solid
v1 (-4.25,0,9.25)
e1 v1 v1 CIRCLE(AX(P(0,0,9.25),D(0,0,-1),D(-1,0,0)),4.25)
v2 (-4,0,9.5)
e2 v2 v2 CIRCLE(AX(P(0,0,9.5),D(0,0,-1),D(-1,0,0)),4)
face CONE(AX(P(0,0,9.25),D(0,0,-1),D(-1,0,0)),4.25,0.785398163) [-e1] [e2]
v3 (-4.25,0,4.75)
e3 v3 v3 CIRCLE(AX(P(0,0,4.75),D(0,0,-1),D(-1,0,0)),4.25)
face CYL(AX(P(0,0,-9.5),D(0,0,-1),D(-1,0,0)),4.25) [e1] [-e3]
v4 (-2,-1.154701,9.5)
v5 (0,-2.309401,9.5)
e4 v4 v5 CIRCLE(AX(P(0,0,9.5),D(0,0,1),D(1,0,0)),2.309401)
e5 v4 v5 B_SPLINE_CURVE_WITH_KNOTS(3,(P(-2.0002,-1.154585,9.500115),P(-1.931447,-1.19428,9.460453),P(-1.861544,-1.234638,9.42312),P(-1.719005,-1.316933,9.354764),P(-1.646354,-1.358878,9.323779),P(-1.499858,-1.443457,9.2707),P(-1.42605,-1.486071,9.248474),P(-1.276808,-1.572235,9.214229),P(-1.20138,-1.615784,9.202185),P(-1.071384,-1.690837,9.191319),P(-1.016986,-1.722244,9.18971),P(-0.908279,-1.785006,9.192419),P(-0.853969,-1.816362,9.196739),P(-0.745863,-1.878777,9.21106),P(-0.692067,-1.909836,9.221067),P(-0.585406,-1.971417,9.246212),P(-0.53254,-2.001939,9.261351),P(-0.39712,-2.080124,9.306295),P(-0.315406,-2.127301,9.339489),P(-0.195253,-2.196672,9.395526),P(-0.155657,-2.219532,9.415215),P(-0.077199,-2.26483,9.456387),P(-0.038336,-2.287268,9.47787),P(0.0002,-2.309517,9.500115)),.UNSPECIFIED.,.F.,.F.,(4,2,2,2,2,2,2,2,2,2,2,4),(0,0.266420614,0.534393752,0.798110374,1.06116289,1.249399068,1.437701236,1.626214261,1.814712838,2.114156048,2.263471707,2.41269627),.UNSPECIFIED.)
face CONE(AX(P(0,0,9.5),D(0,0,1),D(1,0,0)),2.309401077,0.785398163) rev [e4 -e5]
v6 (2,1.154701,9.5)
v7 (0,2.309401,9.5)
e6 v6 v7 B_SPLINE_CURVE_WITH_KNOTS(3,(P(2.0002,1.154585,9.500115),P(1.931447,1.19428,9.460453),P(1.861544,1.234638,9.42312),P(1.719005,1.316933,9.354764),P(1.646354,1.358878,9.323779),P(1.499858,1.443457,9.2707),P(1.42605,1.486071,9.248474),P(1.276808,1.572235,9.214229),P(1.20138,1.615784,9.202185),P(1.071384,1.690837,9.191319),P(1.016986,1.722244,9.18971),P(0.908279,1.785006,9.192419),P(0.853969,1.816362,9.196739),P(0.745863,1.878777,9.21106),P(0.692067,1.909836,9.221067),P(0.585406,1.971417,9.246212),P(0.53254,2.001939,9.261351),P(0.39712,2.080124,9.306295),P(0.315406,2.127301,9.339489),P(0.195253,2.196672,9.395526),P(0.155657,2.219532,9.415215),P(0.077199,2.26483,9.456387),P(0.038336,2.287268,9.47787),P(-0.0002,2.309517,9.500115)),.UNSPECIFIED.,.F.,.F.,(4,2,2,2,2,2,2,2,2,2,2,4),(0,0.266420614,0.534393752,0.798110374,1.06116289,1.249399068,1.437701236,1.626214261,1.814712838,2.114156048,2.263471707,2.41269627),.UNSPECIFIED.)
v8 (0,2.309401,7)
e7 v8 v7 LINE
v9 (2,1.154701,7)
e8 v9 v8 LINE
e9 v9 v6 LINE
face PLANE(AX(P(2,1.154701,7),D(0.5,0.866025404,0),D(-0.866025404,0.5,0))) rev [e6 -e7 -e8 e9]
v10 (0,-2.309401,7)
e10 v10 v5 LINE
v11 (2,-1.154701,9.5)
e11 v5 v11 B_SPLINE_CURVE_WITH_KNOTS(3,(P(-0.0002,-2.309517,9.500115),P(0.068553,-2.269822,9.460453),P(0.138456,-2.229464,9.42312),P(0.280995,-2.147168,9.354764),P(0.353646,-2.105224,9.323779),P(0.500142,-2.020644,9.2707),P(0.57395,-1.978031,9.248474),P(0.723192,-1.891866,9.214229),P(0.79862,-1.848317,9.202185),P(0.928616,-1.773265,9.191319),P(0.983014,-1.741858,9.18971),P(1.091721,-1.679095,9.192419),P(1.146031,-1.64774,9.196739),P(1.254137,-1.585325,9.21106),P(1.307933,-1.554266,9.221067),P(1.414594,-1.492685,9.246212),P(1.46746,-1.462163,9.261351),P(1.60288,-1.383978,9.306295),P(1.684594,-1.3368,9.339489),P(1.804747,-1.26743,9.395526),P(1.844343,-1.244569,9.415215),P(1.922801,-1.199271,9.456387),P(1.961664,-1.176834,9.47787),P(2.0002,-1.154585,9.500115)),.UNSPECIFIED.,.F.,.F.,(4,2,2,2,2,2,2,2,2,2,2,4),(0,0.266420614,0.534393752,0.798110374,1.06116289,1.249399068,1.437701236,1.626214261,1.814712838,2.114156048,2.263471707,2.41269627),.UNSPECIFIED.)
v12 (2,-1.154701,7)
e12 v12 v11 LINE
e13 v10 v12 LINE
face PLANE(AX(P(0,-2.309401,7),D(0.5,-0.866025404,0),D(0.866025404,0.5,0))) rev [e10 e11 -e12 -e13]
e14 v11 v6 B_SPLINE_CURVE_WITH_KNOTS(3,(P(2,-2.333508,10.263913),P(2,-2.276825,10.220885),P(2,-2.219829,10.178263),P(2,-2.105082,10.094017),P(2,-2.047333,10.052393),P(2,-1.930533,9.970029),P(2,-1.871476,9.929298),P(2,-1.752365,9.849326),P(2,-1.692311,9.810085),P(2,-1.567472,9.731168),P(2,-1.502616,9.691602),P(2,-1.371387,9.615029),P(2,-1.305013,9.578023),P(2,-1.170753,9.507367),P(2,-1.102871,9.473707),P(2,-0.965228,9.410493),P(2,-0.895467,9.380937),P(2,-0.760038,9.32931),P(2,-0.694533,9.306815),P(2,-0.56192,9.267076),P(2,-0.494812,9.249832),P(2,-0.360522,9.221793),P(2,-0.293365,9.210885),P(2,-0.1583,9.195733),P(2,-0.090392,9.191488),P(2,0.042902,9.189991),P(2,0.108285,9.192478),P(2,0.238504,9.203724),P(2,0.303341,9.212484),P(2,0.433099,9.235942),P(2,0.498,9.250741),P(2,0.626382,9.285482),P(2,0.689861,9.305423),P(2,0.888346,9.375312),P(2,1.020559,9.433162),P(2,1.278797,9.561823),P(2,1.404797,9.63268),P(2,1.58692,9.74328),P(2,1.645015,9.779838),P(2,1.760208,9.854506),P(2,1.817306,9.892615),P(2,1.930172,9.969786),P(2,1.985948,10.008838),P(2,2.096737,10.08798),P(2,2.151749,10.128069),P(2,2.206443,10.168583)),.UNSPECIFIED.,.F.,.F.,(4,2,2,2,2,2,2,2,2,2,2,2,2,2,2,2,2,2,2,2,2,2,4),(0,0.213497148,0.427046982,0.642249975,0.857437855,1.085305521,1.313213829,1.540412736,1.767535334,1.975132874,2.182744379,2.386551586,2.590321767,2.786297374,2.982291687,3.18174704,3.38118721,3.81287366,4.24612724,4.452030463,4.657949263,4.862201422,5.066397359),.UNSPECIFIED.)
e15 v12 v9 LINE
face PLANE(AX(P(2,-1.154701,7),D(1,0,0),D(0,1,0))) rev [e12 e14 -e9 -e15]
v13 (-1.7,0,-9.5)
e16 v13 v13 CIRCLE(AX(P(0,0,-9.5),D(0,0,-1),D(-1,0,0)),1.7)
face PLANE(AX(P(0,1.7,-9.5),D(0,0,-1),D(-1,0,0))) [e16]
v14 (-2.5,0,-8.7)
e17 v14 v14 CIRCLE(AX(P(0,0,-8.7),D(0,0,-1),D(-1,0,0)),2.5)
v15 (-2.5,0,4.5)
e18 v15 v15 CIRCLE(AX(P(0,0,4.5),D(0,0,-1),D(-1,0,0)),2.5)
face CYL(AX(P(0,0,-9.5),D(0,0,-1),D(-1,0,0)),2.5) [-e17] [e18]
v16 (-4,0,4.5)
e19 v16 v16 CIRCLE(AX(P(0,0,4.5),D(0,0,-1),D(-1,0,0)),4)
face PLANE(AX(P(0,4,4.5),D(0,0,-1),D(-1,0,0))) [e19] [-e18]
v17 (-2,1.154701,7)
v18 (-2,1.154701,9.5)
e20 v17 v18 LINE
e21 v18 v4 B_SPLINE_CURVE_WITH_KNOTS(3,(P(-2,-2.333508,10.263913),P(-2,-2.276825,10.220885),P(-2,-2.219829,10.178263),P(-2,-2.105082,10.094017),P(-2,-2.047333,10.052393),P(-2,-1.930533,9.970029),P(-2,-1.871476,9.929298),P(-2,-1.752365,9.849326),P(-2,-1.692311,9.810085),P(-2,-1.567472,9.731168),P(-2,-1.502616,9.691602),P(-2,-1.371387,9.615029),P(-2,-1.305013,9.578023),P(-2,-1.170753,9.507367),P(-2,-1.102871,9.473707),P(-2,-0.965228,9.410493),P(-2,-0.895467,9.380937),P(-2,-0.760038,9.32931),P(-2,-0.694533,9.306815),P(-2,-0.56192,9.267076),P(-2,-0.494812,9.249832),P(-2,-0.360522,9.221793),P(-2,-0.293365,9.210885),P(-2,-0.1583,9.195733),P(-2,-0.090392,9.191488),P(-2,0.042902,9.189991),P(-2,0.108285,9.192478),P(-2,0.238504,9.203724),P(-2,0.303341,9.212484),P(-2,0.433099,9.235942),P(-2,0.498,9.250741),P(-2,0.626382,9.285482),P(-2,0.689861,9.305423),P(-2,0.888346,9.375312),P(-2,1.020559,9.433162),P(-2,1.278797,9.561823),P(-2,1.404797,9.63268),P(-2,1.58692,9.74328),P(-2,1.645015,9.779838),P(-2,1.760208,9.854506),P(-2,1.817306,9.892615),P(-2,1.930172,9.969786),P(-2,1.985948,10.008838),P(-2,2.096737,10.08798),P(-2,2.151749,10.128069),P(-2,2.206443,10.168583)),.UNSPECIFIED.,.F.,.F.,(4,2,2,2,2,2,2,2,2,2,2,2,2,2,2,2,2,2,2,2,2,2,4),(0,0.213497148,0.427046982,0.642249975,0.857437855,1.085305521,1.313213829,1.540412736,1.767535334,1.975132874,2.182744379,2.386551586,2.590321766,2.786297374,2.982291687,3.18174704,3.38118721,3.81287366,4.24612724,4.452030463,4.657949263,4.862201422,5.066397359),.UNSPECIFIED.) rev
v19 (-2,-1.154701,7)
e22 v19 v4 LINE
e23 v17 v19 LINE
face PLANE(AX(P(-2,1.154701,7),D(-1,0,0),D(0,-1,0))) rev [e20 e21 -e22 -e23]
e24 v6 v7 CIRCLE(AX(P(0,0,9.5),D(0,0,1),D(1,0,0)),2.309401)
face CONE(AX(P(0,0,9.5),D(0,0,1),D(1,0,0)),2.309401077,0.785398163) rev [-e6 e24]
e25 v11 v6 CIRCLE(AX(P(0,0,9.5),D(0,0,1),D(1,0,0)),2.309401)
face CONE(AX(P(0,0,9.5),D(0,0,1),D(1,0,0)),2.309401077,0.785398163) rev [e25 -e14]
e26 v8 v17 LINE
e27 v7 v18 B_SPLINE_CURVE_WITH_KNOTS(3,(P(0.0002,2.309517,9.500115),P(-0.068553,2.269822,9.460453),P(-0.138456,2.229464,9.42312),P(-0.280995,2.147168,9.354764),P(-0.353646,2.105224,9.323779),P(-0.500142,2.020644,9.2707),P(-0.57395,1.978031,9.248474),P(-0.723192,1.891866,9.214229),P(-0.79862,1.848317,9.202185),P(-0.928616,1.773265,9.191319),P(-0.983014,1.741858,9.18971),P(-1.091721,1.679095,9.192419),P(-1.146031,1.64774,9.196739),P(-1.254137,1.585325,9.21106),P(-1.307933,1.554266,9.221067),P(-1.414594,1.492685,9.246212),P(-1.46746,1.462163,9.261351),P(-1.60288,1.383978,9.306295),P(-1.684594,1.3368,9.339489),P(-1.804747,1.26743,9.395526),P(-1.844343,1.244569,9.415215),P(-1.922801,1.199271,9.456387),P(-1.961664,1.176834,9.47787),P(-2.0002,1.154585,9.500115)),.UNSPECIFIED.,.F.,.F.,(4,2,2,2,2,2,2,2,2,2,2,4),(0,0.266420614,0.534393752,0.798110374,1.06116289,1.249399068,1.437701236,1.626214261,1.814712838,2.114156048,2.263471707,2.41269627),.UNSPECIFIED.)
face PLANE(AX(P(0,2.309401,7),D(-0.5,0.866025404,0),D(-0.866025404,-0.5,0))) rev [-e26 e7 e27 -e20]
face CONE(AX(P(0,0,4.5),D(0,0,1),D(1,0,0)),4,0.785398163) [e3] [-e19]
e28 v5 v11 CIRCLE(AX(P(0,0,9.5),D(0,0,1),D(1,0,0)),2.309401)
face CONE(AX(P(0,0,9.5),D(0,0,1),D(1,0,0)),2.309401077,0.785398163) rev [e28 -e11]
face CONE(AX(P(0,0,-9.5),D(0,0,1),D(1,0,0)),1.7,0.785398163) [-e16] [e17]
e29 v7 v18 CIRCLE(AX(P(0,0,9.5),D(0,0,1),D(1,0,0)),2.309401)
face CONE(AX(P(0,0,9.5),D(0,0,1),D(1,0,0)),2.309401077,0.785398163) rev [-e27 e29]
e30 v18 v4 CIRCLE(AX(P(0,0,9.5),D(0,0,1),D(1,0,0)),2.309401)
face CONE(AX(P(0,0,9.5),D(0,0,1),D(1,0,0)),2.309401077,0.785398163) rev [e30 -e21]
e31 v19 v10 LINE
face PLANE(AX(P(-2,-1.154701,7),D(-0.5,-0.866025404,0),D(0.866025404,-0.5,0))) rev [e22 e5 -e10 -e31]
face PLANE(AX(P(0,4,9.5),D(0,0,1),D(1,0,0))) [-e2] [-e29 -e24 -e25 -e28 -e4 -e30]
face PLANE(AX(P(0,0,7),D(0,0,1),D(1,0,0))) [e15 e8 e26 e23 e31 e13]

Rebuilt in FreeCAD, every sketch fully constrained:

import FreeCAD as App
import Part
import Sketcher
from FreeCAD import Vector
Q = App.Units.Quantity

doc = App.newDocument("Part")
params = doc.addObject("Spreadsheet::Sheet", "Params")
for row, (alias, value) in enumerate([
    ("sketch1_width", "4 mm"),
    ("sketch1_height", "19 mm"),
    ("sketch1_width2", "1.7 mm"),
    ("sketch1_width3", "1.5 mm"),
    ("sketch1_height2", "4.5 mm"),
    ("revolution_angle", "360 deg"),
    ("pocket1_length", "2.5 mm"),
    ("pocket2_length", "0.5 mm"),
    ("pocket2_taper", "-45 deg"),
], start=1):
    params.set(f"A{row}", alias)
    params.set(f"B{row}", "=" + value)
    params.setAlias(f"B{row}", alias)

body = doc.addObject("PartDesign::Body", "Body")

# Sketch on YZ plane
sketch1 = body.newObject("Sketcher::SketchObject", "Sketch")
sketch1.AttachmentSupport = (doc.getObject("YZ_Plane"), [""])
sketch1.MapMode = "FlatFace"
sketch1.addGeometry([
    Part.LineSegment(Vector(4.25, 4.75, 0), Vector(4.25, 9.25, 0)),  # 0
    Part.LineSegment(Vector(4.25, 9.25, 0), Vector(4, 9.5, 0)),  # 1
    Part.LineSegment(Vector(4, 9.5, 0), Vector(0, 9.5, 0)),  # 2
    Part.LineSegment(Vector(0, 9.5, 0), Vector(0, -9.5, 0)),  # 3
    Part.LineSegment(Vector(0, -9.5, 0), Vector(1.7, -9.5, 0)),  # 4
    Part.LineSegment(Vector(1.7, -9.5, 0), Vector(2.5, -8.7, 0)),  # 5
    Part.LineSegment(Vector(2.5, -8.7, 0), Vector(2.5, 4.5, 0)),  # 6
    Part.LineSegment(Vector(2.5, 4.5, 0), Vector(4, 4.5, 0)),  # 7
    Part.LineSegment(Vector(4, 4.5, 0), Vector(4.25, 4.75, 0)),  # 8
], False)
sketch1.addConstraint([
    Sketcher.Constraint("Coincident", 0, 2, 1, 1),
    Sketcher.Constraint("Coincident", 1, 2, 2, 1),
    Sketcher.Constraint("Coincident", 2, 2, 3, 1),
    Sketcher.Constraint("Coincident", 3, 2, 4, 1),
    Sketcher.Constraint("Coincident", 4, 2, 5, 1),
    Sketcher.Constraint("Coincident", 5, 2, 6, 1),
    Sketcher.Constraint("Coincident", 6, 2, 7, 1),
    Sketcher.Constraint("Coincident", 7, 2, 8, 1),
    Sketcher.Constraint("Coincident", 8, 2, 0, 1),
    Sketcher.Constraint("Vertical", 0),
    Sketcher.Constraint("Horizontal", 2),
    Sketcher.Constraint("Vertical", 3),
    Sketcher.Constraint("Horizontal", 4),
    Sketcher.Constraint("Vertical", 6),
    Sketcher.Constraint("Horizontal", 7),
    Sketcher.Constraint("Symmetric", 2, 2, 3, 2, -1, 1),
    Sketcher.Constraint("Perpendicular", 1, 5),
    Sketcher.Constraint("Parallel", 5, 8),
    Sketcher.Constraint("Vertical", 1, 2, 7, 2),
    Sketcher.Constraint("Equal", 1, 8),
    Sketcher.Constraint("DistanceX", 2, 2, 2, 1, Q("4 mm")),
    Sketcher.Constraint("DistanceY", 3, 2, 3, 1, Q("19 mm")),
    Sketcher.Constraint("DistanceX", 4, 1, 4, 2, Q("1.7 mm")),
    Sketcher.Constraint("DistanceX", 7, 1, 7, 2, Q("1.5 mm")),
    Sketcher.Constraint("DistanceY", 0, 1, 0, 2, Q("4.5 mm")),
    Sketcher.Constraint("DistanceY", 6, 1, 6, 2, Q("13.2 mm")),
])
sketch1.setExpression("Constraints[20]", "Params.sketch1_width")
sketch1.setExpression("Constraints[21]", "Params.sketch1_height")
sketch1.setExpression("Constraints[22]", "Params.sketch1_width2")
sketch1.setExpression("Constraints[23]", "Params.sketch1_width3")
sketch1.setExpression("Constraints[24]", "Params.sketch1_height2")
revolution = body.newObject("PartDesign::Revolution", "Revolution")
revolution.Profile = sketch1
revolution.ReferenceAxis = (sketch1, ["V_Axis"])
revolution.setExpression("Angle", "Params.revolution_angle")

# Sketch on XY plane
sketch2 = body.newObject("Sketcher::SketchObject", "Sketch001")
sketch2.AttachmentSupport = (doc.getObject("XY_Plane"), [""])
sketch2.MapMode = "FlatFace"
sketch2.AttachmentOffset = App.Placement(Vector(0, 0, 7), App.Rotation())
sketch2.addGeometry([
    Part.LineSegment(Vector(0, 2.3, 0), Vector(-2, 1.2, 0)),  # 0
    Part.LineSegment(Vector(-2, 1.2, 0), Vector(-2, -1.2, 0)),  # 1
    Part.LineSegment(Vector(-2, -1.2, 0), Vector(0, -2.3, 0)),  # 2
    Part.LineSegment(Vector(0, -2.3, 0), Vector(2, -1.2, 0)),  # 3
    Part.LineSegment(Vector(2, -1.2, 0), Vector(2, 1.2, 0)),  # 4
    Part.LineSegment(Vector(2, 1.2, 0), Vector(0, 2.3, 0)),  # 5
], False)
sketch2.addConstraint([
    Sketcher.Constraint("Coincident", 0, 2, 1, 1),
    Sketcher.Constraint("Coincident", 1, 2, 2, 1),
    Sketcher.Constraint("Coincident", 2, 2, 3, 1),
    Sketcher.Constraint("Coincident", 3, 2, 4, 1),
    Sketcher.Constraint("Coincident", 4, 2, 5, 1),
    Sketcher.Constraint("Coincident", 5, 2, 0, 1),
    Sketcher.Constraint("Vertical", 1),
    Sketcher.Constraint("Vertical", 4),
    Sketcher.Constraint("Symmetric", 0, 2, 3, 2, -1, 1),
    Sketcher.Constraint("Symmetric", 2, 2, 5, 2, -1, 1),
    Sketcher.Constraint("PointOnObject", 2, 2, -2),
    Sketcher.Constraint("Parallel", 2, 5),
    Sketcher.Constraint("Horizontal", 1, 2, 3, 2),
    Sketcher.Constraint("Angle", 0, Q("-150 deg")),
    Sketcher.Constraint("DistanceX", 0, 2, -1, 1, Q("2 mm")),
    Sketcher.Constraint("DistanceY", 1, 2, 1, 1, Q("2.309401 mm")),
])
pocket1 = body.newObject("PartDesign::Pocket", "Pocket")
pocket1.Profile = sketch2
pocket1.setExpression("Length", "Params.pocket1_length")
pocket1.Reversed = True

# Sketch on XY plane
sketch3 = body.newObject("Sketcher::SketchObject", "Sketch002")
sketch3.AttachmentSupport = (doc.getObject("XY_Plane"), [""])
sketch3.MapMode = "FlatFace"
sketch3.AttachmentOffset = App.Placement(Vector(0, 0, 9.5), App.Rotation())
sketch3.addGeometry(Part.Circle(Vector(0, 0, 0), Vector(0, 0, 1), 2.3), False)
sketch3.addConstraint([
    Sketcher.Constraint("Coincident", 0, 3, -1, 1),
    Sketcher.Constraint("Diameter", 0, Q("4.618802 mm")),
])
pocket2 = body.newObject("PartDesign::Pocket", "Pocket001")
pocket2.Profile = sketch3
pocket2.setExpression("Length", "Params.pocket2_length")
pocket2.setExpression("TaperAngle", "Params.pocket2_taper")

doc.recompute()
